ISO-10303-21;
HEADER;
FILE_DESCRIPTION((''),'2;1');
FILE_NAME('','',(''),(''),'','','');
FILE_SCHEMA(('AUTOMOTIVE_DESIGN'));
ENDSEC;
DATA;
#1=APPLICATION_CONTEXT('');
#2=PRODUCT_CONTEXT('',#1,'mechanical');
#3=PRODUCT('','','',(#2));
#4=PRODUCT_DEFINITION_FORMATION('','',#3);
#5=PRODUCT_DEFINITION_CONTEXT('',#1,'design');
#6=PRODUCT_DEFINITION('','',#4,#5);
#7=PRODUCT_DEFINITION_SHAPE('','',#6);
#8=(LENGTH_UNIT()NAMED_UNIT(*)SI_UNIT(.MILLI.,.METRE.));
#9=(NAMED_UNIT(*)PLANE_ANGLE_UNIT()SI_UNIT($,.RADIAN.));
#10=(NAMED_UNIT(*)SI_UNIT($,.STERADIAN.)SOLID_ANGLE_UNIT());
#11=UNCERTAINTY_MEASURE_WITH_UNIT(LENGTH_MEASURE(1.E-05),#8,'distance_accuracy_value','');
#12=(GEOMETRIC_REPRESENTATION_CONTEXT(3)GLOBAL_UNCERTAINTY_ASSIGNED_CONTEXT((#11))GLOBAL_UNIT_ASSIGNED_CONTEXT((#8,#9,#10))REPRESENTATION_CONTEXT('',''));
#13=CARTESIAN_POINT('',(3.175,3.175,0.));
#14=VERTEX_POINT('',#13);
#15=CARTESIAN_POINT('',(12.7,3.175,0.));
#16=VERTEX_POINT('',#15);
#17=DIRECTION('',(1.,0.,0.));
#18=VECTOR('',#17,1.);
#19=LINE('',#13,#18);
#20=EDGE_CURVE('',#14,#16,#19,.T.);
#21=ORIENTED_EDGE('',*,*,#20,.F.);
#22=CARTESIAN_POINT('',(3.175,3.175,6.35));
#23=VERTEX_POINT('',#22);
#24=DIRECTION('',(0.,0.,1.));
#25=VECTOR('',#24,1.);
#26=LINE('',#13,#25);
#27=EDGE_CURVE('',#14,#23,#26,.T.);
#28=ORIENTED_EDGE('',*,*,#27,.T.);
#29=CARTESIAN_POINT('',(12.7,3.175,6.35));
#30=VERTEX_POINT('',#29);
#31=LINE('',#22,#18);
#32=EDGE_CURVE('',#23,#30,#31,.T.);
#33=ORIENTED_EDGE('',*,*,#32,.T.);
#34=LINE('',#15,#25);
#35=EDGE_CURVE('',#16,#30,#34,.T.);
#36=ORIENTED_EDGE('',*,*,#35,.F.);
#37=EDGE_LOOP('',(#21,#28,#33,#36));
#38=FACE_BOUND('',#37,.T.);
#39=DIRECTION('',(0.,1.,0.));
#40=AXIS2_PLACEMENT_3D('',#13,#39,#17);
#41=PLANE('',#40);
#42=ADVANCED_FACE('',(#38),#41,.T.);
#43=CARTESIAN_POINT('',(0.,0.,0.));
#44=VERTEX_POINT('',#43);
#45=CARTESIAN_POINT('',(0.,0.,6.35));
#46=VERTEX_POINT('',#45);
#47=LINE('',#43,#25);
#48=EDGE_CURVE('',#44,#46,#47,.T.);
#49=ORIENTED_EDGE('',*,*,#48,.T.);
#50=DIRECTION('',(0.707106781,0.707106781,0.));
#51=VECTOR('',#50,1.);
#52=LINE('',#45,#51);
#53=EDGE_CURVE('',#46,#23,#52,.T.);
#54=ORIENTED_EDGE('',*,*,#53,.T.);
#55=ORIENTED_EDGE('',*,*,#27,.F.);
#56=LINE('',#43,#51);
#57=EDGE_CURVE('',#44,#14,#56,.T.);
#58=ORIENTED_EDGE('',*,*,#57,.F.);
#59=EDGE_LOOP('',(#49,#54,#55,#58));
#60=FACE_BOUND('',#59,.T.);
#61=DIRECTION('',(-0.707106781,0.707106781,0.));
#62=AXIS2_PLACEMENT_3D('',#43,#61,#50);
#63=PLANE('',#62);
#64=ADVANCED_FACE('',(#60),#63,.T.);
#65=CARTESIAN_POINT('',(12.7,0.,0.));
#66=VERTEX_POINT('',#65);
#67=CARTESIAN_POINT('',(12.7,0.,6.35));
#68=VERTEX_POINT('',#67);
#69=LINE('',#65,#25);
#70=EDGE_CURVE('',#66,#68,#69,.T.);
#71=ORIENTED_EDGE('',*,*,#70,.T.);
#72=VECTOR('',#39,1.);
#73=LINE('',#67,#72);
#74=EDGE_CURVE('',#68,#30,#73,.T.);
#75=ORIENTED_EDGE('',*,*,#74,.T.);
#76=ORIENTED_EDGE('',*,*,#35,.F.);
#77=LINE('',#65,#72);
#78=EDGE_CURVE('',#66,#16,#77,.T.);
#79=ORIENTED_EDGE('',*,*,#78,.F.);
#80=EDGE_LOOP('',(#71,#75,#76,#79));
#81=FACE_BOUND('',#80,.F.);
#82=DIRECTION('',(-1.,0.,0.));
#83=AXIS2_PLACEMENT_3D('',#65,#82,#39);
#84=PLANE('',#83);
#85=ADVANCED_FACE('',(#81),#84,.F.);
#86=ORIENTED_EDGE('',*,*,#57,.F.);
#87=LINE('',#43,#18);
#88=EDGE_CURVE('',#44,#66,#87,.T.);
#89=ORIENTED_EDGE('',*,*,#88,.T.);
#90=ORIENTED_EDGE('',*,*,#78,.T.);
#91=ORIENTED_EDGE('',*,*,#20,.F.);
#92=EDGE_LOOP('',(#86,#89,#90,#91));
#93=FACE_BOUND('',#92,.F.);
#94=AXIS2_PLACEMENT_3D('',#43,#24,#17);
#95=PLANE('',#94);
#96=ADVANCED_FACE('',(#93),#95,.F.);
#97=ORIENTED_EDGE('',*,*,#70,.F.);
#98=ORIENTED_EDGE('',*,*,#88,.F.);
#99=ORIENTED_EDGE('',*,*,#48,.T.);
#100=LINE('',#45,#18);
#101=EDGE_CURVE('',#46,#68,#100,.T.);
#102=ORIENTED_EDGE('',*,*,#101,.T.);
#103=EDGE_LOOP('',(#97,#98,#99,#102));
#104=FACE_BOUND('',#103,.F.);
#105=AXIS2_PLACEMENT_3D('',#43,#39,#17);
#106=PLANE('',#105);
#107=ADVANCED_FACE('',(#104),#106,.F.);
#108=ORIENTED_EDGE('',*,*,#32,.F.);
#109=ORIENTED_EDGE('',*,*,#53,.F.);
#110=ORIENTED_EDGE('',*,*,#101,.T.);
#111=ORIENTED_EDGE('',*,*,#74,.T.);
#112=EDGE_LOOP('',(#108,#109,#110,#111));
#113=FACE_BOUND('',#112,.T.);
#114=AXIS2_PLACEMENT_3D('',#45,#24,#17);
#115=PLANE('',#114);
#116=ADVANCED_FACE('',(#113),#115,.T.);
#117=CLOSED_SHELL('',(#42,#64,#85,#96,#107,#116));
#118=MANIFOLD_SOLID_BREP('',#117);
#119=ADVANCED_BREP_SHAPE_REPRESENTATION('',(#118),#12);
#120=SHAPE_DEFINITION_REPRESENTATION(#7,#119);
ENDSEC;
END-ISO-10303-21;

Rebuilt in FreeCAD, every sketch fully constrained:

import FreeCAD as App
import Part
import Sketcher
Q = App.Units.Quantity


def add_polygon(sketch, points):
    """Adds a closed chain of lines whose ends are joined by coincident constraints."""
    first, n = sketch.GeometryCount, len(points)
    for a, b in zip(points, points[1:] + points[:1]):
        sketch.addGeometry(Part.LineSegment(App.Vector(*a, 0), App.Vector(*b, 0)), False)
    for i in range(n):
        sketch.addConstraint(Sketcher.Constraint("Coincident", first + i, 2, first + (i + 1) % n, 1))

doc = App.newDocument("Part")
body = doc.addObject("PartDesign::Body", "Body")

# Sketch on XY plane
sketch1 = body.newObject("Sketcher::SketchObject", "Sketch")
sketch1.AttachmentSupport = (doc.getObject("XY_Plane"), [""])
sketch1.MapMode = "FlatFace"
add_polygon(sketch1, [(3.175, 3.175), (0, 0), (12.7, 0), (12.7, 3.175)])  # lines 0-3
sketch1.addConstraint(Sketcher.Constraint("Horizontal", 1))
sketch1.addConstraint(Sketcher.Constraint("Vertical", 2))
sketch1.addConstraint(Sketcher.Constraint("Horizontal", 3))
sketch1.addConstraint(Sketcher.Constraint("Coincident", 0, 2, -1, 1))
sketch1.addConstraint(Sketcher.Constraint("DistanceX", 1, 1, 1, 2, Q("0.5 in")))
sketch1.addConstraint(Sketcher.Constraint("DistanceY", 2, 1, 2, 2, Q("0.125 in")))
sketch1.addConstraint(Sketcher.Constraint("DistanceX", -1, 1, 3, 2, Q("0.125 in")))
pad1 = body.newObject("PartDesign::Pad", "Pad")
pad1.Profile = sketch1
pad1.Length = Q("0.25 in")

doc.recompute()
